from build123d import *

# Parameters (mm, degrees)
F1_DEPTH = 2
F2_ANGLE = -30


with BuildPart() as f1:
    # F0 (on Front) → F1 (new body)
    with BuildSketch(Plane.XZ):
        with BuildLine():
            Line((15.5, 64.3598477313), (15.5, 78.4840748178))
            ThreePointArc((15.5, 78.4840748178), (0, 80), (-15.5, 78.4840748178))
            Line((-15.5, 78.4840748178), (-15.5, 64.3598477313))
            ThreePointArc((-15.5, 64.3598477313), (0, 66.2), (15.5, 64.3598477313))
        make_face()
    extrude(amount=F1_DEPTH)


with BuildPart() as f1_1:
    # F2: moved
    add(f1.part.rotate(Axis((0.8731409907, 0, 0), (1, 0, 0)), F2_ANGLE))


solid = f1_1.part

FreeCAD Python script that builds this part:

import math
import FreeCAD as App
import Part
import Sketcher
Q = App.Units.Quantity

doc = App.newDocument("Part")
body = doc.addObject("PartDesign::Body", "Body")

# Sketch on XZ plane
sketch1 = body.newObject("Sketcher::SketchObject", "Sketch")
sketch1.AttachmentSupport = (doc.getObject("XZ_Plane"), [""])
sketch1.MapMode = "FlatFace"
sketch1.addGeometry(Part.LineSegment(App.Vector(15.5, 64.359848, 0), App.Vector(15.5, 78.484075, 0)), False)
sketch1.addGeometry(Part.ArcOfCircle(Part.Circle(App.Vector(0, 0, 0), App.Vector(0, 0, 1), 80), math.radians(78.828289), math.radians(101.171711)), False)
sketch1.addGeometry(Part.LineSegment(App.Vector(-15.5, 78.484075, 0), App.Vector(-15.5, 64.359848, 0)), False)
sketch1.addGeometry(Part.ArcOfCircle(Part.Circle(App.Vector(0, 0, 0), App.Vector(0, 0, 1), 66.2), math.radians(76.459126), math.radians(103.540874)), False)
sketch1.addConstraint(Sketcher.Constraint("Coincident", 0, 2, 1, 1))
sketch1.addConstraint(Sketcher.Constraint("Coincident", 1, 2, 2, 1))
sketch1.addConstraint(Sketcher.Constraint("Coincident", 2, 2, 3, 2))
sketch1.addConstraint(Sketcher.Constraint("Coincident", 3, 1, 0, 1))
sketch1.addConstraint(Sketcher.Constraint("Vertical", 0))
sketch1.addConstraint(Sketcher.Constraint("Vertical", 2))
sketch1.addConstraint(Sketcher.Constraint("Coincident", 1, 3, -1, 1))
sketch1.addConstraint(Sketcher.Constraint("Coincident", 3, 3, -1, 1))
sketch1.addConstraint(Sketcher.Constraint("Horizontal", 0, 2, 1, 2))
sketch1.addConstraint(Sketcher.Constraint("Radius", 1, Q("80 mm")))
sketch1.addConstraint(Sketcher.Constraint("Radius", 3, Q("66.2 mm")))
sketch1.addConstraint(Sketcher.Constraint("DistanceX", 1, 2, 0, 2, Q("31 mm")))
pad1 = body.newObject("PartDesign::Pad", "Pad")
pad1.Profile = sketch1
pad1.Length = 2
body2 = doc.addObject("PartDesign::Body", "Body001")
doc.recompute()

body.Placement = App.Placement(App.Vector(0, 0, 0), App.Rotation(App.Vector(1, 0, 0), 330))
boolean = body2.newObject("PartDesign::Boolean", "Boolean")
boolean.Type = "Fuse"
boolean.addObjects([body])

doc.recompute()
